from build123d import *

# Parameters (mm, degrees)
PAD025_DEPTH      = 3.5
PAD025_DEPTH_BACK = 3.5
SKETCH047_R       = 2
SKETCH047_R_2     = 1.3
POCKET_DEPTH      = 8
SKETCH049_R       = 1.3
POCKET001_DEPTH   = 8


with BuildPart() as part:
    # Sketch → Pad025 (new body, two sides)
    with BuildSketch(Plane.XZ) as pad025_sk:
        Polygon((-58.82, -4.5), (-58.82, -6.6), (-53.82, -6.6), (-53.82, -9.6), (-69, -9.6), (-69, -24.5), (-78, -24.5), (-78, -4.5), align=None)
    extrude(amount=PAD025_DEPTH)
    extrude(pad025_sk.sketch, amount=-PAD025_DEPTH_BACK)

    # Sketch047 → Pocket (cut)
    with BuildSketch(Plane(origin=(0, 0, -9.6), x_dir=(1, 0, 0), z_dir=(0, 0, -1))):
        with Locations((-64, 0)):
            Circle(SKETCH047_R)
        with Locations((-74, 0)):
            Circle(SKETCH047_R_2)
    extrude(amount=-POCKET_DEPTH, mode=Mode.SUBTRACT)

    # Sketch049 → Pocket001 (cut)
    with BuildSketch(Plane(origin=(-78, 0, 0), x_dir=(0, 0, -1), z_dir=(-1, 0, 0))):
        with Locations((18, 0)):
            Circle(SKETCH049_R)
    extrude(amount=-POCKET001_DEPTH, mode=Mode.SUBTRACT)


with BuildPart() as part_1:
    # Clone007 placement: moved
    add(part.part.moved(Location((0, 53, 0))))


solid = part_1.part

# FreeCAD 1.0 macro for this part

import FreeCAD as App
import Part
import Sketcher
from FreeCAD import Vector


def add_polygon(sketch, points):
    """Adds a closed chain of lines whose ends are joined by coincident constraints."""
    first, n = sketch.GeometryCount, len(points)
    for a, b in zip(points, points[1:] + points[:1]):
        sketch.addGeometry(Part.LineSegment(App.Vector(*a, 0), App.Vector(*b, 0)), False)
    for i in range(n):
        sketch.addConstraint(Sketcher.Constraint("Coincident", first + i, 2, first + (i + 1) % n, 1))

doc = App.newDocument("Part")
body = doc.addObject("PartDesign::Body", "Body")

sketch1 = body.newObject("Sketcher::SketchObject", "Sketch")
sketch1.AttachmentSupport = (doc.getObject("XZ_Plane"), [""])
sketch1.MapMode = "FlatFace"
add_polygon(sketch1, [(-58.8, -6.6), (-58.8, -4.5), (-78, -4.5), (-78, -24.5), (-69, -24.5), (-69, -9.6), (-53.8, -9.6), (-53.8, -6.6)])
sketch1.addConstraint([
    Sketcher.Constraint("Vertical", 0),
    Sketcher.Constraint("Horizontal", 1),
    Sketcher.Constraint("Vertical", 2),
    Sketcher.Constraint("Horizontal", 3),
    Sketcher.Constraint("Vertical", 4),
    Sketcher.Constraint("Horizontal", 5),
    Sketcher.Constraint("Vertical", 6),
    Sketcher.Constraint("Horizontal", 7),
    Sketcher.Constraint("DistanceX", 3, 1, 3, 2, 9.0),
    Sketcher.Constraint("DistanceX", 7, 2, 7, 1, 5.0),
    Sketcher.Constraint("DistanceY", 2, 2, 2, 1, 20.0),
    Sketcher.Constraint("DistanceY", 6, 1, 6, 2, 3.0),
    Sketcher.Constraint("DistanceY", 0, 1, 0, 2, 2.1),
    Sketcher.Constraint("DistanceX", 1, 2, -1, 1, 78.0),
    Sketcher.Constraint("DistanceX", 1, 2, 1, 1, 19.18),
    Sketcher.Constraint("DistanceY", 0, 2, -1, 1, 4.5),
])
pad1 = body.newObject("PartDesign::Pad", "Pad")
pad1.Profile = sketch1
pad1.Type = "TwoLengths"
pad1.Length = 3.5
pad1.Length2 = 3.5

sketch2 = body.newObject("Sketcher::SketchObject", "Sketch001")
sketch2.AttachmentSupport = (doc.getObject("XY_Plane"), [""])
sketch2.MapMode = "FlatFace"
sketch2.AttachmentOffset = App.Placement(Vector(0, 0, -9.6), App.Rotation())
sketch2.addGeometry([
    Part.Circle(Vector(-64, 0, 0), Vector(0, 0, 1), 2),
    Part.Circle(Vector(-74, 0, 0), Vector(0, 0, 1), 1.3),
], False)
sketch2.addConstraint([
    Sketcher.Constraint("PointOnObject", 0, 3, -1),
    Sketcher.Constraint("PointOnObject", 1, 3, -1),
    Sketcher.Constraint("Diameter", 0, 4.0),
    Sketcher.Constraint("Diameter", 1, 2.6),
    Sketcher.Constraint("DistanceX", 0, 3, -1, 1, 64.0),
    Sketcher.Constraint("DistanceX", 1, 3, -1, 1, 74.0),
])
pocket1 = body.newObject("PartDesign::Pocket", "Pocket")
pocket1.Profile = sketch2
pocket1.Length = 8
pocket1.Reversed = True

sketch3 = body.newObject("Sketcher::SketchObject", "Sketch002")
sketch3.AttachmentSupport = (doc.getObject("YZ_Plane"), [""])
sketch3.MapMode = "FlatFace"
sketch3.AttachmentOffset = App.Placement(Vector(0, 0, -78), App.Rotation())
sketch3.addGeometry(Part.Circle(Vector(0, -18, 0), Vector(0, 0, 1), 1.3), False)
sketch3.addConstraint([
    Sketcher.Constraint("PointOnObject", 0, 3, -2),
    Sketcher.Constraint("Diameter", 0, 2.6),
    Sketcher.Constraint("DistanceY", 0, 3, -1, 1, 18.0),
])
pocket2 = body.newObject("PartDesign::Pocket", "Pocket001")
pocket2.Profile = sketch3
pocket2.Length = 8
pocket2.Reversed = True
body2 = doc.addObject("PartDesign::Body", "Body001")
doc.recompute()

body.Placement = App.Placement(Vector(0, 53, 0), App.Rotation(Vector(0, 0, 1), 0))
boolean = body2.newObject("PartDesign::Boolean", "Boolean")
boolean.Type = "Fuse"
boolean.addObjects([body])

doc.recompute()
